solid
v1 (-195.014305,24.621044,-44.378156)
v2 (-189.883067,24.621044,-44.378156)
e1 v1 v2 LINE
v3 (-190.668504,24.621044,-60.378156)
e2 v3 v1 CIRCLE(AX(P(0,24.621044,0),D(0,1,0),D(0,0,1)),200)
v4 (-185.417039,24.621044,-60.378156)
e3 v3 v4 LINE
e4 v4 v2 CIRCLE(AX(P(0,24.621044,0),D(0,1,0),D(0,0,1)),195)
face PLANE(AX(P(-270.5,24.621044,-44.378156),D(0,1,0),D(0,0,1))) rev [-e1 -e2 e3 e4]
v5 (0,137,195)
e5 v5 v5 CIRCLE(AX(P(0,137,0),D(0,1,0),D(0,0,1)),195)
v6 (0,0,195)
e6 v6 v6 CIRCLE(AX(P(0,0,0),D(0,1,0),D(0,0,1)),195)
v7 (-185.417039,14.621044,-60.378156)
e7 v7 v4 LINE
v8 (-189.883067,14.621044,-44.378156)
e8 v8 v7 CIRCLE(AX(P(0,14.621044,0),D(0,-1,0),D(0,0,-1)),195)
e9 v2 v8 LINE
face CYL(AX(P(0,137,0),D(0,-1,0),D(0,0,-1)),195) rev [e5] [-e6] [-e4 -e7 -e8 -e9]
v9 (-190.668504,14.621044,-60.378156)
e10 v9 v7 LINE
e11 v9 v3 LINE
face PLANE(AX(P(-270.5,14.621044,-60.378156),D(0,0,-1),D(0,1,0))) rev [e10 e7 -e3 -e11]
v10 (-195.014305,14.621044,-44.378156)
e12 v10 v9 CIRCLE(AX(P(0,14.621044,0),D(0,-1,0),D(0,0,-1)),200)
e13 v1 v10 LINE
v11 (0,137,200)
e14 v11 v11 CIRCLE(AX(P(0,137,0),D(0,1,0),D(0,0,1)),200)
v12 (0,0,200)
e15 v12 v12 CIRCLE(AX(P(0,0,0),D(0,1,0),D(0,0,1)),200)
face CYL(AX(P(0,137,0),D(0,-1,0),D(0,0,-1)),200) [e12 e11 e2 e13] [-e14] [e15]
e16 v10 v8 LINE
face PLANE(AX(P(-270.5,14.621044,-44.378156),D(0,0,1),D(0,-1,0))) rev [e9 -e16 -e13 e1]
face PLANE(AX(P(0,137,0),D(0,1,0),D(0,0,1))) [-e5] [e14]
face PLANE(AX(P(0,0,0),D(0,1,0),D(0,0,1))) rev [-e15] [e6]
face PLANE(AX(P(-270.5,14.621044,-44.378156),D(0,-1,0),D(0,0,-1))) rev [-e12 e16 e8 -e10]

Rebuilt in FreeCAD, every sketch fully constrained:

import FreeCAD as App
import Part
import Sketcher
from FreeCAD import Vector


def add_polygon(sketch, points):
    """Adds a closed chain of lines whose ends are joined by coincident constraints."""
    first, n = sketch.GeometryCount, len(points)
    for a, b in zip(points, points[1:] + points[:1]):
        sketch.addGeometry(Part.LineSegment(App.Vector(*a, 0), App.Vector(*b, 0)), False)
    for i in range(n):
        sketch.addConstraint(Sketcher.Constraint("Coincident", first + i, 2, first + (i + 1) % n, 1))

doc = App.newDocument("Part")
body = doc.addObject("PartDesign::Body", "Body")

# Sketch on XZ plane
sketch1 = doc.addObject("Sketcher::SketchObject", "Sketch")
body.addObject(sketch1)
sketch1.AttachmentSupport = (doc.XZ_Plane, [""])
sketch1.MapMode = "FlatFace"
sketch1.addGeometry([
    Part.Circle(Vector(0, 0, 0), Vector(0, 0, 1), 200),
    Part.Circle(Vector(0, 0, 0), Vector(0, 0, 1), 195),
], False)
sketch1.addConstraint([
    Sketcher.Constraint("Coincident", 0, 3, -1, 1),
    Sketcher.Constraint("Coincident", 1, 3, -1, 1),
    Sketcher.Constraint("Diameter", 0, 400.0),
    Sketcher.Constraint("Diameter", 1, 390.0),
])
pad1 = doc.addObject("PartDesign::Pad", "Pad")
body.addObject(pad1)
pad1.Profile = sketch1
pad1.Length = 137
pad1.Reversed = True

# Sketch on YZ plane
sketch2 = doc.addObject("Sketcher::SketchObject", "Sketch001")
body.addObject(sketch2)
sketch2.AttachmentSupport = (doc.YZ_Plane, [""])
sketch2.MapMode = "FlatFace"
sketch2.AttachmentOffset = App.Placement(Vector(0, 0, -200), App.Rotation())
add_polygon(sketch2, [(25, -44), (15, -44), (15, -60), (25, -60)])  # lines 0-3
sketch2.addConstraint([
    Sketcher.Constraint("Horizontal", 0),
    Sketcher.Constraint("Vertical", 1),
    Sketcher.Constraint("Horizontal", 2),
    Sketcher.Constraint("Vertical", 3),
    Sketcher.Constraint("DistanceX", 0, 2, 0, 1, 10.0),
    Sketcher.Constraint("DistanceY", 1, 2, 1, 1, 16.0),
    Sketcher.Constraint("DistanceX", -1, 1, 0, 2, 14.621044),
    Sketcher.Constraint("DistanceY", 0, 2, -1, 1, 44.378156),
])
pocket1 = doc.addObject("PartDesign::Pocket", "Pocket")
body.addObject(pocket1)
pocket1.Profile = sketch2
pocket1.Length = 141
pocket1.Midplane = True

doc.recompute()
